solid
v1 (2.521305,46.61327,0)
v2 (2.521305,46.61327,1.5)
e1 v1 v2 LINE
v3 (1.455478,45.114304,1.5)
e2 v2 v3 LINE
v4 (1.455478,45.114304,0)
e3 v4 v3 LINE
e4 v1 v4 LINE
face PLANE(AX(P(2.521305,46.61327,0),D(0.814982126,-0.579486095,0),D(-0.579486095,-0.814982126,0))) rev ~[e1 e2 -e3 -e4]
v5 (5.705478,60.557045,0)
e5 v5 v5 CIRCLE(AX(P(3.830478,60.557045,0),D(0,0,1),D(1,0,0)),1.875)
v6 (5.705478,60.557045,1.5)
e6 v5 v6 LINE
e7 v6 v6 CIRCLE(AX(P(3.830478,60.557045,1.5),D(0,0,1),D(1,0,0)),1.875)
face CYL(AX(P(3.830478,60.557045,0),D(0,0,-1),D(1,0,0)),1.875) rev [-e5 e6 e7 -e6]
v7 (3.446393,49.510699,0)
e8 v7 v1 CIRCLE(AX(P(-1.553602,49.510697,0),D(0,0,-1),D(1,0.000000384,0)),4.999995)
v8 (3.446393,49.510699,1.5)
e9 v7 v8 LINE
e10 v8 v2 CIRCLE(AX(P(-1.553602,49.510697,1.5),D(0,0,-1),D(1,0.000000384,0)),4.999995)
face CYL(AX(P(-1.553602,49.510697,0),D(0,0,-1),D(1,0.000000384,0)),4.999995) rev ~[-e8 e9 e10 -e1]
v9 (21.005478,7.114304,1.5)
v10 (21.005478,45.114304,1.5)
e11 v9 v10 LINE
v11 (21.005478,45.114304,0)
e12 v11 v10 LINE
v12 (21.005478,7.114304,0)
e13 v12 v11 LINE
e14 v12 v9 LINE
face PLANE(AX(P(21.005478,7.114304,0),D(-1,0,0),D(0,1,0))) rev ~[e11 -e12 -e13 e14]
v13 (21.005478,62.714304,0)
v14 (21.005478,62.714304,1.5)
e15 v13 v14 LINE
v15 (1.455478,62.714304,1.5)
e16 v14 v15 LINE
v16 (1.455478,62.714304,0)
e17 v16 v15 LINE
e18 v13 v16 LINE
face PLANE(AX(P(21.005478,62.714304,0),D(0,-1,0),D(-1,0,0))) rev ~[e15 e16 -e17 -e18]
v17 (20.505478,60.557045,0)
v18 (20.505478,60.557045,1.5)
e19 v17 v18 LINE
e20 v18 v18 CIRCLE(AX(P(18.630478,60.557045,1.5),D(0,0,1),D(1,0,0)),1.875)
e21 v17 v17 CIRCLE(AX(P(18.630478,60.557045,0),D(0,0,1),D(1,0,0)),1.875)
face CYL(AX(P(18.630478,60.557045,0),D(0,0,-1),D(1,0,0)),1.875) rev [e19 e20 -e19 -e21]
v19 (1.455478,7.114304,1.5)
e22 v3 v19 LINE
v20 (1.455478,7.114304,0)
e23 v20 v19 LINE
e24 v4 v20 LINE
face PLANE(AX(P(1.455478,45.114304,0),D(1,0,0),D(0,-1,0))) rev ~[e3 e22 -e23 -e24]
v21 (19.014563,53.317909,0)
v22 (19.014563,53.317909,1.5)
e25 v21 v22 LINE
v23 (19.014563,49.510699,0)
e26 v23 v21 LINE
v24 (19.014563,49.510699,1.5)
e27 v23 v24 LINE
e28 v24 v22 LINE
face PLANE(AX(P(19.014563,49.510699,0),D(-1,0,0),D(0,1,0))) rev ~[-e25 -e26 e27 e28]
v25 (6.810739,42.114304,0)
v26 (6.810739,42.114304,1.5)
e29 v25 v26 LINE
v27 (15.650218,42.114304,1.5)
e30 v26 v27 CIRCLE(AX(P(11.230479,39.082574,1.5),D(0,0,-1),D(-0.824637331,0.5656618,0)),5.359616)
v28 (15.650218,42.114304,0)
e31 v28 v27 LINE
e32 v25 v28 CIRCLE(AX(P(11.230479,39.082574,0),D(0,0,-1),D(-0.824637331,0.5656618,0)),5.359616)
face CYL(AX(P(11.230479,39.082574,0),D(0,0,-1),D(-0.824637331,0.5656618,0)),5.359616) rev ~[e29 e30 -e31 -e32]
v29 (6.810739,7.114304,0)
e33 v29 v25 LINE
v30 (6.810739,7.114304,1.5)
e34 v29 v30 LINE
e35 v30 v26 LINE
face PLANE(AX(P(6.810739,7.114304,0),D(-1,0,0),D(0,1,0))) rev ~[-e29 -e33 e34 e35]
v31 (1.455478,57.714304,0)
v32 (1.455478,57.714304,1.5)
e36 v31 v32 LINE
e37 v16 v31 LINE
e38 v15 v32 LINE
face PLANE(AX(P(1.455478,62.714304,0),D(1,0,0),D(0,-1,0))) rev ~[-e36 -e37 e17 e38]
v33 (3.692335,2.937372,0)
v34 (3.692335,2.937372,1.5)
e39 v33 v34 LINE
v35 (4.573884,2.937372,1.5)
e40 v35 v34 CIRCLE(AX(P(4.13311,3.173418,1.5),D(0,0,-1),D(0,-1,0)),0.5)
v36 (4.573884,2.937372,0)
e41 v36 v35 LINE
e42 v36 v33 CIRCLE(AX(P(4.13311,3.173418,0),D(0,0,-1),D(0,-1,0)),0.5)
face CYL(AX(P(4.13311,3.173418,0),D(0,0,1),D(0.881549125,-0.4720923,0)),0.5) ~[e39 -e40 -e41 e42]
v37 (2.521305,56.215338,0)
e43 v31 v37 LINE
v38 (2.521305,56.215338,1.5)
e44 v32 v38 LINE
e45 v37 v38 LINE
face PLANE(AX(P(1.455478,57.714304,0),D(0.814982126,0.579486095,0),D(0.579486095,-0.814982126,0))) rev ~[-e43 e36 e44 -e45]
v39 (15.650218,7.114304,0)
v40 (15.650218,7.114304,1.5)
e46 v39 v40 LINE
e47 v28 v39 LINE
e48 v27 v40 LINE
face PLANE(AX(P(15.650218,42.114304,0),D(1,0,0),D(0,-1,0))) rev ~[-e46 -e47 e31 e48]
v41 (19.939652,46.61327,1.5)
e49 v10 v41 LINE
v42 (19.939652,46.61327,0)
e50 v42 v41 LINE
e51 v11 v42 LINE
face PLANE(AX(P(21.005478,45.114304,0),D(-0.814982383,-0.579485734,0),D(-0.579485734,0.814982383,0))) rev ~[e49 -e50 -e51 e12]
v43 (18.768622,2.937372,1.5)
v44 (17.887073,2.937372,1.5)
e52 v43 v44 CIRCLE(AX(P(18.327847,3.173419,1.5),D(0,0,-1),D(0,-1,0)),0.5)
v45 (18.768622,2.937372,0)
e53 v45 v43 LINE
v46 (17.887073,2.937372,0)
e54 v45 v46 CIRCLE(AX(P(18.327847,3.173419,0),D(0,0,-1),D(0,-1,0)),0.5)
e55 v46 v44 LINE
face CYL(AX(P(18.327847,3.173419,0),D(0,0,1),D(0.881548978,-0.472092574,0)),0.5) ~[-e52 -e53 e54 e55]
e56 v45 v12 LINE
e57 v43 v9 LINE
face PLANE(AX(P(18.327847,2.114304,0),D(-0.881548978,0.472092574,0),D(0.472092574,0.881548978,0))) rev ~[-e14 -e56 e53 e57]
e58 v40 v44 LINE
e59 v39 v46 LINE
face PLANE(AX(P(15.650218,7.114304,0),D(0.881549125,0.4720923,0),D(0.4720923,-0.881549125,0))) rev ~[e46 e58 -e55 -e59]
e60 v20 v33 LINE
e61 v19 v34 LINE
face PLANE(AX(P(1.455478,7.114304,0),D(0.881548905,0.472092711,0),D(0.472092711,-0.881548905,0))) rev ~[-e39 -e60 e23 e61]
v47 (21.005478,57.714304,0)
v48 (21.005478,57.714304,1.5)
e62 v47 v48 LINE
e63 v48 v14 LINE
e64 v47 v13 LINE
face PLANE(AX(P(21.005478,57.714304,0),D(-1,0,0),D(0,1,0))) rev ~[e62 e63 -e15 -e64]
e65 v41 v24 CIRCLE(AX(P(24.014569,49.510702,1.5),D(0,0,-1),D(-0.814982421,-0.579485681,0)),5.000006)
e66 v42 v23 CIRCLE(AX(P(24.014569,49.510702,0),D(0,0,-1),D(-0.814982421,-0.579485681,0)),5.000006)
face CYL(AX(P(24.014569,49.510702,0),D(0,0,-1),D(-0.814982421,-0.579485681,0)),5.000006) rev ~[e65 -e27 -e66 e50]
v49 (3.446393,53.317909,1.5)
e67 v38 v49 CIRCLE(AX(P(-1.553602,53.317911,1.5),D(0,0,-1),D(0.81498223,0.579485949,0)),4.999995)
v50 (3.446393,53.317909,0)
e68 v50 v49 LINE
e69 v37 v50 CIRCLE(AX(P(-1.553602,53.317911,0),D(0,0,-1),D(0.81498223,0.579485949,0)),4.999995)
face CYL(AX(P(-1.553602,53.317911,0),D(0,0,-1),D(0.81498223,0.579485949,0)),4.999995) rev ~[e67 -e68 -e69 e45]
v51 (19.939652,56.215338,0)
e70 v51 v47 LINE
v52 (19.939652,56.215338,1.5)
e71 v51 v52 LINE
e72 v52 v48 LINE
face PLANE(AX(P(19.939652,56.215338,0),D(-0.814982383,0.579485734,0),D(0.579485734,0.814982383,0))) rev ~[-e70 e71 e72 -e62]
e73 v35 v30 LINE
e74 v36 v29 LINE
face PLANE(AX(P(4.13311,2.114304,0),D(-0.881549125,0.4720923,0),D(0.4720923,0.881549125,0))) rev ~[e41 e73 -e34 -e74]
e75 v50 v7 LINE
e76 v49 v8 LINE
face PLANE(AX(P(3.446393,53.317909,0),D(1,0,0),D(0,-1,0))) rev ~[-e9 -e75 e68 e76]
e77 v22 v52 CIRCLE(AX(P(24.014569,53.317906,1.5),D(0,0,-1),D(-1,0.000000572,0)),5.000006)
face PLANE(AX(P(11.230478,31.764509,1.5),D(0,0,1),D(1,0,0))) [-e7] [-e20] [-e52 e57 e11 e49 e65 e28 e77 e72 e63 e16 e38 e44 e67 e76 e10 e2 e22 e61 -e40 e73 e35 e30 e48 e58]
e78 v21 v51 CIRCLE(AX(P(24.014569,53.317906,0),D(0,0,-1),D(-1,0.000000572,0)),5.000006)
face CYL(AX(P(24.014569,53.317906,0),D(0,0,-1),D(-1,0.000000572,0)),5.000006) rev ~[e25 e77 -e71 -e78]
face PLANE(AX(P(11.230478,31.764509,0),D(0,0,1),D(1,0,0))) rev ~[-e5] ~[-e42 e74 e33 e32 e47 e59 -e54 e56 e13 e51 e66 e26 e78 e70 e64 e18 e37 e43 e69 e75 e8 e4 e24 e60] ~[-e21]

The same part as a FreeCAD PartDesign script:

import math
import FreeCAD as App
import Part
import Sketcher
Q = App.Units.Quantity


def edges_at(feature, points):
    """Names of the edges that pass closest to the given points."""
    edges = feature.Shape.Edges
    near = lambda p: min(range(len(edges)), key=lambda i: edges[i].distToShape(Part.Vertex(*p))[0])
    return sorted({f"Edge{near(p) + 1}" for p in points})

doc = App.newDocument("Part")
body = doc.addObject("PartDesign::Body", "Body")

# Sketch on XY plane
sketch1 = body.newObject("Sketcher::SketchObject", "Sketch")
sketch1.AttachmentSupport = (doc.getObject("XY_Plane"), [""])
sketch1.MapMode = "FlatFace"
sketch1.addGeometry([
    Part.LineSegment(App.Vector(18.327847, 2.114304, 0), App.Vector(21.005478, 7.114304, 0)),  # 0
    Part.LineSegment(App.Vector(21.005478, 7.114304, 0), App.Vector(21.005478, 45.114304, 0)),  # 1
    Part.LineSegment(App.Vector(21.005478, 45.114304, 0), App.Vector(19.939652, 46.61327, 0)),  # 2
    Part.ArcOfCircle(Part.Circle(App.Vector(24.014569, 49.510702, 0), App.Vector(0, 0, 1), 5.000006), math.radians(-179.999967), math.radians(-144.585624)),  # 3
    Part.LineSegment(App.Vector(19.014563, 49.510699, 0), App.Vector(19.014563, 53.317909, 0)),  # 4
    Part.ArcOfCircle(Part.Circle(App.Vector(24.014569, 53.317906, 0), App.Vector(0, 0, 1), 5.000006), math.radians(144.585624), math.radians(179.999967)),  # 5
    Part.LineSegment(App.Vector(19.939652, 56.215338, 0), App.Vector(21.005478, 57.714304, 0)),  # 6
    Part.LineSegment(App.Vector(21.005478, 57.714304, 0), App.Vector(21.005478, 62.714304, 0)),  # 7
    Part.LineSegment(App.Vector(21.005478, 62.714304, 0), App.Vector(1.455478, 62.714304, 0)),  # 8
    Part.LineSegment(App.Vector(1.455478, 62.714304, 0), App.Vector(1.455478, 57.714304, 0)),  # 9
    Part.LineSegment(App.Vector(1.455478, 57.714304, 0), App.Vector(2.521305, 56.215338, 0)),  # 10
    Part.ArcOfCircle(Part.Circle(App.Vector(-1.553602, 53.317911, 0), App.Vector(0, 0, 1), 4.999995), math.radians(-0.000022), math.radians(35.414395)),  # 11
    Part.LineSegment(App.Vector(3.446393, 53.317909, 0), App.Vector(3.446393, 49.510699, 0)),  # 12
    Part.ArcOfCircle(Part.Circle(App.Vector(-1.553602, 49.510697, 0), App.Vector(0, 0, 1), 4.999995), math.radians(-35.414395), math.radians(0.000022)),  # 13
    Part.LineSegment(App.Vector(2.521305, 46.61327, 0), App.Vector(1.455478, 45.114304, 0)),  # 14
    Part.LineSegment(App.Vector(1.455478, 45.114304, 0), App.Vector(1.455478, 7.114304, 0)),  # 15
    Part.LineSegment(App.Vector(1.455478, 7.114304, 0), App.Vector(4.13311, 2.114304, 0)),  # 16
    Part.LineSegment(App.Vector(4.13311, 2.114304, 0), App.Vector(6.810739, 7.114304, 0)),  # 17
    Part.LineSegment(App.Vector(6.810739, 7.114304, 0), App.Vector(6.810739, 42.114304, 0)),  # 18
    Part.ArcOfCircle(Part.Circle(App.Vector(11.230479, 39.082574, 0), App.Vector(0, 0, 1), 5.359616), math.radians(34.448261), math.radians(145.551739)),  # 19
    Part.LineSegment(App.Vector(15.650218, 42.114304, 0), App.Vector(15.650218, 7.114304, 0)),  # 20
    Part.LineSegment(App.Vector(15.650218, 7.114304, 0), App.Vector(18.327847, 2.114304, 0)),  # 21
    Part.Circle(App.Vector(3.830478, 60.557045, 0), App.Vector(0, 0, 1), 1.875),  # 22
    Part.Circle(App.Vector(18.630478, 60.557045, 0), App.Vector(0, 0, 1), 1.875),  # 23
], False)
sketch1.addConstraint([
    Sketcher.Constraint("Coincident", 0, 2, 1, 1),
    Sketcher.Constraint("Coincident", 1, 2, 2, 1),
    Sketcher.Constraint("Tangent", 2, 2, 3, 2),
    Sketcher.Constraint("Tangent", 3, 1, 4, 1),
    Sketcher.Constraint("Tangent", 4, 2, 5, 2),
    Sketcher.Constraint("Tangent", 5, 1, 6, 1),
    Sketcher.Constraint("Coincident", 6, 2, 7, 1),
    Sketcher.Constraint("Coincident", 7, 2, 8, 1),
    Sketcher.Constraint("Coincident", 8, 2, 9, 1),
    Sketcher.Constraint("Coincident", 9, 2, 10, 1),
    Sketcher.Constraint("Tangent", 10, 2, 11, 2),
    Sketcher.Constraint("Tangent", 11, 1, 12, 1),
    Sketcher.Constraint("Tangent", 12, 2, 13, 2),
    Sketcher.Constraint("Tangent", 13, 1, 14, 1),
    Sketcher.Constraint("Coincident", 14, 2, 15, 1),
    Sketcher.Constraint("Coincident", 15, 2, 16, 1),
    Sketcher.Constraint("Coincident", 16, 2, 17, 1),
    Sketcher.Constraint("Coincident", 17, 2, 18, 1),
    Sketcher.Constraint("Coincident", 18, 2, 19, 2),
    Sketcher.Constraint("Coincident", 19, 1, 20, 1),
    Sketcher.Constraint("Coincident", 20, 2, 21, 1),
    Sketcher.Constraint("Coincident", 21, 2, 0, 1),
    Sketcher.Constraint("Vertical", 1),
    Sketcher.Constraint("Vertical", 4),
    Sketcher.Constraint("Vertical", 7),
    Sketcher.Constraint("Horizontal", 8),
    Sketcher.Constraint("Vertical", 9),
    Sketcher.Constraint("Vertical", 12),
    Sketcher.Constraint("Vertical", 15),
    Sketcher.Constraint("Vertical", 18),
    Sketcher.Constraint("Vertical", 20),
    Sketcher.Constraint("Equal", 3, 5),
    Sketcher.Constraint("Equal", 11, 13),
    Sketcher.Constraint("Equal", 22, 23),
    Sketcher.Constraint("Parallel", 2, 10),
    Sketcher.Constraint("Parallel", 6, 14),
    Sketcher.Constraint("Parallel", 0, 17),
    Sketcher.Constraint("Parallel", 16, 21),
    Sketcher.Constraint("Horizontal", 22, 3, 23, 3),
    Sketcher.Constraint("Horizontal", 13, 3, 3, 1),
    Sketcher.Constraint("Horizontal", 11, 3, 4, 2),
    Sketcher.Constraint("Horizontal", 6, 2, 9, 2),
    Sketcher.Constraint("Horizontal", 5, 1, 10, 2),
    Sketcher.Constraint("Horizontal", 2, 2, 13, 1),
    Sketcher.Constraint("Horizontal", 1, 2, 14, 2),
    Sketcher.Constraint("Horizontal", 0, 2, 15, 2),
    Sketcher.Constraint("Horizontal", 15, 2, 17, 2),
    Sketcher.Constraint("Horizontal", 18, 2, 19, 1),
    Sketcher.Constraint("Horizontal", 17, 2, 20, 2),
    Sketcher.Constraint("Horizontal", 16, 2, 21, 2),
    Sketcher.Constraint("Vertical", 1, 2, 6, 2),
    Sketcher.Constraint("Equal", 0, 16),
    Sketcher.Constraint("Diameter", 22, Q("3.75 mm")),
    Sketcher.Constraint("DistanceY", 1, 1, 1, 2, Q("38 mm")),
    Sketcher.Constraint("DistanceY", 7, 1, 7, 2, Q("5 mm")),
    Sketcher.Constraint("DistanceY", 18, 1, 18, 2, Q("35 mm")),
    Sketcher.Constraint("DistanceY", 16, 2, 15, 2, Q("5 mm")),
    Sketcher.Constraint("DistanceX", 8, 2, 8, 1, Q("19.55 mm")),
    Sketcher.Constraint("DistanceX", 22, 3, 19, 3, Q("7.400001 mm")),
    Sketcher.Constraint("DistanceX", 22, 3, 23, 3, Q("14.8 mm")),
    Sketcher.Constraint("Radius", 3, Q("5.000006 mm")),
    Sketcher.Constraint("Radius", 19, Q("5.359616 mm")),
    Sketcher.Constraint("DistanceY", 4, 1, 4, 2, Q("3.80721 mm")),
    Sketcher.Constraint("DistanceY", -1, 1, 3, 3, Q("49.510702 mm")),
    Sketcher.Constraint("Distance", 2, Q("1.839262 mm")),
    Sketcher.Constraint("DistanceX", -1, 1, 3, 3, Q("24.014569 mm")),
    Sketcher.Constraint("DistanceX", -1, 1, 19, 3, Q("11.230479 mm")),
    Sketcher.Constraint("DistanceX", -1, 1, 16, 2, Q("4.13311 mm")),
    Sketcher.Constraint("DistanceY", 5, 3, 22, 3, Q("7.239139 mm")),
])
pad1 = body.newObject("PartDesign::Pad", "Pad")
pad1.Profile = sketch1
pad1.Length = 1.5
doc.recompute()

fillet = body.newObject("PartDesign::Fillet", "Fillet")
fillet.Base = (pad1, edges_at(pad1, [(18.328, 2.114, 0.75), (4.133, 2.114, 0.75)]))
fillet.Radius = 0.5

doc.recompute()
